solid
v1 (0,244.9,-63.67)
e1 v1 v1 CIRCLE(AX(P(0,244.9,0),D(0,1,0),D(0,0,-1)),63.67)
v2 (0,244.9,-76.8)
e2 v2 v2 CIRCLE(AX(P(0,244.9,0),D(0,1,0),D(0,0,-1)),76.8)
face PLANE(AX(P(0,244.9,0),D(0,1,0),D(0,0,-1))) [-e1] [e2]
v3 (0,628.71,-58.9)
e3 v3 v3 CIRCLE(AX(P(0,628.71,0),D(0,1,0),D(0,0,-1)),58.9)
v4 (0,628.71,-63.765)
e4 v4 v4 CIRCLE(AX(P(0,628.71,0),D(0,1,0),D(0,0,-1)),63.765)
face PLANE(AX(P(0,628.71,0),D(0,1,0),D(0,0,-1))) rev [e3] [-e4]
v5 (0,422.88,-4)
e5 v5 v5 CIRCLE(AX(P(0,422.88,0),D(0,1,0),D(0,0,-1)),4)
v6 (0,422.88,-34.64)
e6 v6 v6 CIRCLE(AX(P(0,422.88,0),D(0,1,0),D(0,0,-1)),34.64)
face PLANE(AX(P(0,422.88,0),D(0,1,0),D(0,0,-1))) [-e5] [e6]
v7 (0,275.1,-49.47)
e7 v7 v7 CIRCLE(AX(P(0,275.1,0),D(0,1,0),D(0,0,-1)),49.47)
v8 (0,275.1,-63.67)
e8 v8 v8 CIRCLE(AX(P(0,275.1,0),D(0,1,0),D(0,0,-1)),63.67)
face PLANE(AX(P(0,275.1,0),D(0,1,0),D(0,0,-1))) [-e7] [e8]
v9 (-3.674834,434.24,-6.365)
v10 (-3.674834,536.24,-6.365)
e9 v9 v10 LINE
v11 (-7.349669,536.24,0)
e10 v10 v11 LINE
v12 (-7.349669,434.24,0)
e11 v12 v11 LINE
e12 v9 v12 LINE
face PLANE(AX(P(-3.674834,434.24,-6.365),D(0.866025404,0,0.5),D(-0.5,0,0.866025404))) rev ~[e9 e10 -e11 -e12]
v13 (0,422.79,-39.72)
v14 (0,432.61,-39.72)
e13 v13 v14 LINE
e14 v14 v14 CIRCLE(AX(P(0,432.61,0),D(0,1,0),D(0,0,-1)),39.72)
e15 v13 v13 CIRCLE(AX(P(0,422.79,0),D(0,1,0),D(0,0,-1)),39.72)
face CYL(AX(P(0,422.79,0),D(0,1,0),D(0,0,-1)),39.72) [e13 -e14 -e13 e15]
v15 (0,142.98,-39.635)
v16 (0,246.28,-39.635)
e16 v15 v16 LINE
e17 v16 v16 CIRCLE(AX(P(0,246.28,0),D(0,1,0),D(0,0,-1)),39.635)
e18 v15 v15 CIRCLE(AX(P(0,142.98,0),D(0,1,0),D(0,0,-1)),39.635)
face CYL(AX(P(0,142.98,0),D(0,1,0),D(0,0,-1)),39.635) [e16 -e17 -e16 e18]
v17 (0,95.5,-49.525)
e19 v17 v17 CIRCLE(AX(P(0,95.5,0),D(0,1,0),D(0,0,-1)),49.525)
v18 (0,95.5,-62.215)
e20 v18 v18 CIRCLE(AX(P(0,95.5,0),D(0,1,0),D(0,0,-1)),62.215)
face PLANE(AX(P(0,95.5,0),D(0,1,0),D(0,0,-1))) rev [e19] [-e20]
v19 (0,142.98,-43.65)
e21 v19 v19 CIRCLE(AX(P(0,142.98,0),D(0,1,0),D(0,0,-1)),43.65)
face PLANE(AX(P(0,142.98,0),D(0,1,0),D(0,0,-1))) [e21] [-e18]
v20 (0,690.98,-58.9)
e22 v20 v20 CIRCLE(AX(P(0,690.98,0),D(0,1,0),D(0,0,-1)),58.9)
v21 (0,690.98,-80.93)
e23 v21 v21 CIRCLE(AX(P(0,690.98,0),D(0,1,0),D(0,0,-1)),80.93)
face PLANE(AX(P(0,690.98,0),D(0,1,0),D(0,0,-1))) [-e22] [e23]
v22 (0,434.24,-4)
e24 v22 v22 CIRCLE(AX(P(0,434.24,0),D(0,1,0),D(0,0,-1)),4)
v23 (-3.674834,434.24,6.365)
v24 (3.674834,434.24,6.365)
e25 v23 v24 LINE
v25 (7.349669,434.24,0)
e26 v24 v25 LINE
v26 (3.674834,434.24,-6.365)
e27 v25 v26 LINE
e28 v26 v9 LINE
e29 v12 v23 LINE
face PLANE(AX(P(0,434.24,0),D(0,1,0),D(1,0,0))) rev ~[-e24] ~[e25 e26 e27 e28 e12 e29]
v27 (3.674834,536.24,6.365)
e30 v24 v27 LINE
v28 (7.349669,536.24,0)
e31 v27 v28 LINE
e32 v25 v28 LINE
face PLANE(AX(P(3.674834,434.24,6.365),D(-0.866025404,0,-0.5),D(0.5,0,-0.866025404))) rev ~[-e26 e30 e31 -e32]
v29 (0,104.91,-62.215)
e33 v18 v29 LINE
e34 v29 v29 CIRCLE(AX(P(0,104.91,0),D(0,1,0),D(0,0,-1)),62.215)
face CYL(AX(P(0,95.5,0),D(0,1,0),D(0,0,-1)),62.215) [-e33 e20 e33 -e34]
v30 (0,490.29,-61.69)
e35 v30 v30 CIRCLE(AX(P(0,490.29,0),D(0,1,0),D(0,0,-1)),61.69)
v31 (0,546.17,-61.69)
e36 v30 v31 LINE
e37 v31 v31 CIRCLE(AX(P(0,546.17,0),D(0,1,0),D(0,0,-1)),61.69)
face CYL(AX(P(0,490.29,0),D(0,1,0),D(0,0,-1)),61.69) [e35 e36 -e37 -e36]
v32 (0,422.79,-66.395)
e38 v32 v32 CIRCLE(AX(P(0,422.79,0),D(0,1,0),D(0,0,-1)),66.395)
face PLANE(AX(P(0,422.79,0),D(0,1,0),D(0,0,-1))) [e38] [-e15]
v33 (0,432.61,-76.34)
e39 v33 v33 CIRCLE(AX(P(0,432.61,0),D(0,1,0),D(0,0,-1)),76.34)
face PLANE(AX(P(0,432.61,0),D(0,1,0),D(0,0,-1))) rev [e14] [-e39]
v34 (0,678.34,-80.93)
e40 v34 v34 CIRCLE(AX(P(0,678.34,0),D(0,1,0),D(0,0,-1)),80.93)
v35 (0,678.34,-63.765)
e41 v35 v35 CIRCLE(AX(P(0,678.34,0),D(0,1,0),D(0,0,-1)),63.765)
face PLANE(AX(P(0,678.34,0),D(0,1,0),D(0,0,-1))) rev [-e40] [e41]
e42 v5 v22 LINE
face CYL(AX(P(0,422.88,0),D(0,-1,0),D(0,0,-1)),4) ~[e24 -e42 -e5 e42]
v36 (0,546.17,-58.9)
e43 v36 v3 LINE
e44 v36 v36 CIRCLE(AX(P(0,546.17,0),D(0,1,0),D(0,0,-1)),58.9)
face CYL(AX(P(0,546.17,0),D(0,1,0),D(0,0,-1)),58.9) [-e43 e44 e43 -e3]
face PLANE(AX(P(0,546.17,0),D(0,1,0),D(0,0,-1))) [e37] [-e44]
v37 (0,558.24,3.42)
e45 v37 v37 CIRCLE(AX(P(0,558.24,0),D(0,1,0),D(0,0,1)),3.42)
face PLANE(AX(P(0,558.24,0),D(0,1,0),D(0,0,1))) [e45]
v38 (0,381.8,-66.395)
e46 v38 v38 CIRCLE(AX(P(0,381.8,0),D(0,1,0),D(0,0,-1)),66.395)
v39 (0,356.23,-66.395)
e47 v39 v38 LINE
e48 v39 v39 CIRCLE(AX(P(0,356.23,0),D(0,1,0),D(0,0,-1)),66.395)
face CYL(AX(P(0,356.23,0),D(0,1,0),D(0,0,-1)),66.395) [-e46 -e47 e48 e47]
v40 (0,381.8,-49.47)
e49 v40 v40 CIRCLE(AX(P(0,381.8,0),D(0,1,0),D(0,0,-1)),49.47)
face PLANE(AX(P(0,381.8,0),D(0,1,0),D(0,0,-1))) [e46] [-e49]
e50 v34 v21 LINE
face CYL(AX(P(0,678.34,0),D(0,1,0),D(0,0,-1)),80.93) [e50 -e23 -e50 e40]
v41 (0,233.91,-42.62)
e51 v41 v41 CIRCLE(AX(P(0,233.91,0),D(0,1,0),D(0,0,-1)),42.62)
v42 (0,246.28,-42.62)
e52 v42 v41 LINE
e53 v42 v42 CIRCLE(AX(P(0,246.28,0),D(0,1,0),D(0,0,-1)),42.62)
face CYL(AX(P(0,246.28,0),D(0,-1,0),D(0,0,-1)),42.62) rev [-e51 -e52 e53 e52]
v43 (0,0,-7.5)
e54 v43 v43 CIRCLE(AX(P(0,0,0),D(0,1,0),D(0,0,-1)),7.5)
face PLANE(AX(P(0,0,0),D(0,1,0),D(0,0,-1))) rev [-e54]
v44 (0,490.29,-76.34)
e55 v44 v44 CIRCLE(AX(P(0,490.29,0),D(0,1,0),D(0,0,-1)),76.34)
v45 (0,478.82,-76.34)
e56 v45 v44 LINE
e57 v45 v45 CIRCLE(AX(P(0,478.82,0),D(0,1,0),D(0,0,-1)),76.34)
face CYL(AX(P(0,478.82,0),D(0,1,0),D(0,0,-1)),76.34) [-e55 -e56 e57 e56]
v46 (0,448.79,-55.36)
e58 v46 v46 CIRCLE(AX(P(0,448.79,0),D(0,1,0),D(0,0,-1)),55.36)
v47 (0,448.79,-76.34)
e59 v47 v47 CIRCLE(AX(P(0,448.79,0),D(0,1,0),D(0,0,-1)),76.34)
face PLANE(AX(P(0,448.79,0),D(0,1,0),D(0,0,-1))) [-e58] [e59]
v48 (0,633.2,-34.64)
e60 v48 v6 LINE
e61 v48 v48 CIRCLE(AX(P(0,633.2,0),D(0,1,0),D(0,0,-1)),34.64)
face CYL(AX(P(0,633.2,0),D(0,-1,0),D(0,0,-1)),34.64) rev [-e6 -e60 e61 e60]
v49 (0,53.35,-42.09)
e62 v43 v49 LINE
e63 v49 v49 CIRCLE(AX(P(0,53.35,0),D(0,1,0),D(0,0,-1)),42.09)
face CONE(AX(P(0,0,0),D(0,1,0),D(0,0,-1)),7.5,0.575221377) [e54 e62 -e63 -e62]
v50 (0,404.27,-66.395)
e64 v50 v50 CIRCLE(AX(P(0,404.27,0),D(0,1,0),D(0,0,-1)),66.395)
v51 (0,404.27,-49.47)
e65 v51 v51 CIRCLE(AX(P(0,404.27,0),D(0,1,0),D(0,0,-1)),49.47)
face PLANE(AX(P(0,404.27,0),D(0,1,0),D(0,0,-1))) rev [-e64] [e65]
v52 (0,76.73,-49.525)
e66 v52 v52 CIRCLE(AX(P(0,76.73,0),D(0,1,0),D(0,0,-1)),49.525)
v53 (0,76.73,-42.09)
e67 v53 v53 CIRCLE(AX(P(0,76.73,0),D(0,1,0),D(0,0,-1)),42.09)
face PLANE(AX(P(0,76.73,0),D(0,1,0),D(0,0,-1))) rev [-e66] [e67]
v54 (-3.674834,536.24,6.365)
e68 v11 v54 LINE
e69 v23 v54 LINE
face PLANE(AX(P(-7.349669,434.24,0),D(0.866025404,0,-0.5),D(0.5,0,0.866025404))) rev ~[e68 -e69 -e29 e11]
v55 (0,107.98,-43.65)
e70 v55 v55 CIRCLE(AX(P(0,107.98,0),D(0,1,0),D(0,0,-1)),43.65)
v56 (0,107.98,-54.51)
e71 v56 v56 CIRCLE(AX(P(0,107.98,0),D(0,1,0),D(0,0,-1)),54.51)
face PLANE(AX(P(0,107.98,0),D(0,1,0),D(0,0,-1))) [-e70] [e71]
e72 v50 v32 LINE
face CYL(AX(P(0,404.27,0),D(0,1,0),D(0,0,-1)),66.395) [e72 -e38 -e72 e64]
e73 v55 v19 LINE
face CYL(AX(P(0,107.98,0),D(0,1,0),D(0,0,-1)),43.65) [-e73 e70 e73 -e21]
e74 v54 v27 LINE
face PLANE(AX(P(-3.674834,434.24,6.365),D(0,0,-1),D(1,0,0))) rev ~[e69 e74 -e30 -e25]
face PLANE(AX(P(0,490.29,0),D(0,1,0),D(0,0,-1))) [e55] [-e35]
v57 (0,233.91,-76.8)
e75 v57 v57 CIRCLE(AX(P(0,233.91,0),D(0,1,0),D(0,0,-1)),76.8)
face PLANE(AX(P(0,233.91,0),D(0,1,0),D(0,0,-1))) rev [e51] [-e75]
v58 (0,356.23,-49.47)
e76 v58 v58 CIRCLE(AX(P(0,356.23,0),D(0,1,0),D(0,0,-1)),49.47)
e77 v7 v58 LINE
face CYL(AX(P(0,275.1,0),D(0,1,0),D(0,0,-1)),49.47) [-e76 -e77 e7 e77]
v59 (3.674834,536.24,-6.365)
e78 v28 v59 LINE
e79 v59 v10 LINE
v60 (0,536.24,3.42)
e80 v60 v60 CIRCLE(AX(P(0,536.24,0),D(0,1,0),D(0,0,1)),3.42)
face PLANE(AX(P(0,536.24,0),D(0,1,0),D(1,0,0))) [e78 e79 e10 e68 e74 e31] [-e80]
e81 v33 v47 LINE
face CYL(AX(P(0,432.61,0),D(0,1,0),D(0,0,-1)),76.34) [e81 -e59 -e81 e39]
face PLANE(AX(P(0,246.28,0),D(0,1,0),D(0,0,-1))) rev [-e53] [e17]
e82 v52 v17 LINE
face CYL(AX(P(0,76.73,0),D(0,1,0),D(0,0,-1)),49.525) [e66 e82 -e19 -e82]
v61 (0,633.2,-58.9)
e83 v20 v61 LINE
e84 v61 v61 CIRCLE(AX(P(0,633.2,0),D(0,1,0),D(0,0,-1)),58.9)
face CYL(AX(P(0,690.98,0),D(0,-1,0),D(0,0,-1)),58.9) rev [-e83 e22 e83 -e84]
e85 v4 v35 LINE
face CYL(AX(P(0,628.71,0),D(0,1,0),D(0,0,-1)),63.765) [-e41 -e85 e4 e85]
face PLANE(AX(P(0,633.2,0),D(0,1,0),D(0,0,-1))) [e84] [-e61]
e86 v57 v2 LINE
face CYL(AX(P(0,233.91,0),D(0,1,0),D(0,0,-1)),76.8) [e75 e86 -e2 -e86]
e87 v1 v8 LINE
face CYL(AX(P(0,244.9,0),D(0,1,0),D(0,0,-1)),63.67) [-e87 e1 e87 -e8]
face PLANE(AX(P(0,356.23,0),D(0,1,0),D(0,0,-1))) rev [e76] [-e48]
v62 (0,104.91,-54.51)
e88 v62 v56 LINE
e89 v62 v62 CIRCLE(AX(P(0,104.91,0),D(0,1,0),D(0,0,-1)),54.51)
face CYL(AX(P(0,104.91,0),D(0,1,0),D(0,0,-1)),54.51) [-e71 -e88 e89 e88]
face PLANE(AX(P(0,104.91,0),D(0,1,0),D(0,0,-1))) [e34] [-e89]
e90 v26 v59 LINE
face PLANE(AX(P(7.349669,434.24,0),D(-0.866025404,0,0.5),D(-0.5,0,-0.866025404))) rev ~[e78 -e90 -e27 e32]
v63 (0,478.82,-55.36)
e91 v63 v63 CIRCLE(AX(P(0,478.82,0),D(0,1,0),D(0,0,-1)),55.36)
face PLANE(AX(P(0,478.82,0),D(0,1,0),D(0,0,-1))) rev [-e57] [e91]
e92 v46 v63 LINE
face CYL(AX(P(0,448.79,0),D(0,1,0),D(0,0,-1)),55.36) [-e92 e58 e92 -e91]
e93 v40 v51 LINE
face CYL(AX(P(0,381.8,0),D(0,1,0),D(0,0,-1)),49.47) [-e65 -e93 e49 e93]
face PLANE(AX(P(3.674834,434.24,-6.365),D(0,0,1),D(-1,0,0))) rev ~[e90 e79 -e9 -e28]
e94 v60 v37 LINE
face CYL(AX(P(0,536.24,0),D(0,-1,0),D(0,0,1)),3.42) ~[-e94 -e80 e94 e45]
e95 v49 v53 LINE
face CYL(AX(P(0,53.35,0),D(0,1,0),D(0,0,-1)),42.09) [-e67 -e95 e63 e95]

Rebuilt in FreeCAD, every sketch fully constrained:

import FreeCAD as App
import Part
import Sketcher
Q = App.Units.Quantity


def add_polygon(sketch, points):
    """Adds a closed chain of lines whose ends are joined by coincident constraints."""
    first, n = sketch.GeometryCount, len(points)
    for a, b in zip(points, points[1:] + points[:1]):
        sketch.addGeometry(Part.LineSegment(App.Vector(*a, 0), App.Vector(*b, 0)), False)
    for i in range(n):
        sketch.addConstraint(Sketcher.Constraint("Coincident", first + i, 2, first + (i + 1) % n, 1))

doc = App.newDocument("Part")
body = doc.addObject("PartDesign::Body", "Body")

sketch1 = doc.addObject("Sketcher::SketchObject", "Sketch")
body.addObject(sketch1)
sketch1.AttachmentSupport = (doc.XY_Plane, [""])
sketch1.MapMode = "FlatFace"
add_polygon(sketch1, [(0, 0), (7.5, 0), (42.1, 53.4), (42.1, 76.7), (49.5, 76.7), (49.5, 95.5), (62.2, 95.5), (62.2, 104.9), (54.5, 104.9), (54.5, 108), (43.6, 108), (43.6, 143), (39.6, 143), (39.6, 246.3), (42.6, 246.3), (42.6, 233.9), (76.8, 233.9), (76.8, 244.9), (63.7, 244.9), (63.7, 275.1), (49.5, 275.1), (49.5, 356.2), (66.4, 356.2), (66.4, 381.8), (49.5, 381.8), (49.5, 404.3), (66.4, 404.3), (66.4, 422.8), (39.7, 422.8), (39.7, 432.6), (76.3, 432.6), (76.3, 448.8), (55.4, 448.8), (55.4, 478.8), (76.3, 478.8), (76.3, 490.3), (61.7, 490.3), (61.7, 546.2), (58.9, 546.2), (58.9, 628.7), (63.8, 628.7), (63.8, 678.3), (80.9, 678.3), (80.9, 691), (58.9, 691), (58.9, 633.2), (34.6, 633.2), (34.6, 422.9), (0, 422.9)])
sketch1.addConstraint(Sketcher.Constraint("Horizontal", 0))
sketch1.addConstraint(Sketcher.Constraint("Vertical", 2))
sketch1.addConstraint(Sketcher.Constraint("Horizontal", 3))
sketch1.addConstraint(Sketcher.Constraint("Vertical", 4))
sketch1.addConstraint(Sketcher.Constraint("Horizontal", 5))
sketch1.addConstraint(Sketcher.Constraint("Vertical", 6))
sketch1.addConstraint(Sketcher.Constraint("Horizontal", 7))
sketch1.addConstraint(Sketcher.Constraint("Vertical", 8))
sketch1.addConstraint(Sketcher.Constraint("Horizontal", 9))
sketch1.addConstraint(Sketcher.Constraint("Vertical", 10))
sketch1.addConstraint(Sketcher.Constraint("Horizontal", 11))
sketch1.addConstraint(Sketcher.Constraint("Vertical", 12))
sketch1.addConstraint(Sketcher.Constraint("Horizontal", 13))
sketch1.addConstraint(Sketcher.Constraint("Vertical", 14))
sketch1.addConstraint(Sketcher.Constraint("Horizontal", 15))
sketch1.addConstraint(Sketcher.Constraint("Vertical", 16))
sketch1.addConstraint(Sketcher.Constraint("Horizontal", 17))
sketch1.addConstraint(Sketcher.Constraint("Vertical", 18))
sketch1.addConstraint(Sketcher.Constraint("Horizontal", 19))
sketch1.addConstraint(Sketcher.Constraint("Vertical", 20))
sketch1.addConstraint(Sketcher.Constraint("Horizontal", 21))
sketch1.addConstraint(Sketcher.Constraint("Vertical", 22))
sketch1.addConstraint(Sketcher.Constraint("Horizontal", 23))
sketch1.addConstraint(Sketcher.Constraint("Vertical", 24))
sketch1.addConstraint(Sketcher.Constraint("Horizontal", 25))
sketch1.addConstraint(Sketcher.Constraint("Vertical", 26))
sketch1.addConstraint(Sketcher.Constraint("Horizontal", 27))
sketch1.addConstraint(Sketcher.Constraint("Vertical", 28))
sketch1.addConstraint(Sketcher.Constraint("Horizontal", 29))
sketch1.addConstraint(Sketcher.Constraint("Vertical", 30))
sketch1.addConstraint(Sketcher.Constraint("Horizontal", 31))
sketch1.addConstraint(Sketcher.Constraint("Vertical", 32))
sketch1.addConstraint(Sketcher.Constraint("Horizontal", 33))
sketch1.addConstraint(Sketcher.Constraint("Vertical", 34))
sketch1.addConstraint(Sketcher.Constraint("Horizontal", 35))
sketch1.addConstraint(Sketcher.Constraint("Vertical", 36))
sketch1.addConstraint(Sketcher.Constraint("Horizontal", 37))
sketch1.addConstraint(Sketcher.Constraint("Vertical", 38))
sketch1.addConstraint(Sketcher.Constraint("Horizontal", 39))
sketch1.addConstraint(Sketcher.Constraint("Vertical", 40))
sketch1.addConstraint(Sketcher.Constraint("Horizontal", 41))
sketch1.addConstraint(Sketcher.Constraint("Vertical", 42))
sketch1.addConstraint(Sketcher.Constraint("Horizontal", 43))
sketch1.addConstraint(Sketcher.Constraint("Vertical", 44))
sketch1.addConstraint(Sketcher.Constraint("Horizontal", 45))
sketch1.addConstraint(Sketcher.Constraint("Vertical", 46))
sketch1.addConstraint(Sketcher.Constraint("Horizontal", 47))
sketch1.addConstraint(Sketcher.Constraint("Vertical", 48))
sketch1.addConstraint(Sketcher.Constraint("Coincident", 48, 2, -1, 1))
sketch1.addConstraint(Sketcher.Constraint("Vertical", 20, 2, 23, 2))
sketch1.addConstraint(Sketcher.Constraint("Vertical", 22, 2, 25, 2))
sketch1.addConstraint(Sketcher.Constraint("Vertical", 30, 2, 33, 2))
sketch1.addConstraint(Sketcher.Constraint("Vertical", 38, 2, 43, 2))
sketch1.addConstraint(Sketcher.Constraint("DistanceY", 10, 1, 10, 2, Q("35 mm")))
sketch1.addConstraint(Sketcher.Constraint("DistanceX", 0, 1, 0, 2, Q("7.5 mm")))
sketch1.addConstraint(Sketcher.Constraint("DistanceX", 19, 2, 19, 1, Q("14.2 mm")))
sketch1.addConstraint(Sketcher.Constraint("DistanceY", 12, 1, 12, 2, Q("103.3 mm")))
sketch1.addConstraint(Sketcher.Constraint("DistanceY", 18, 1, 18, 2, Q("30.2 mm")))
sketch1.addConstraint(Sketcher.Constraint("DistanceY", 26, 2, 30, 2, Q("26 mm")))
sketch1.addConstraint(Sketcher.Constraint("DistanceX", 5, 1, 5, 2, Q("12.69 mm")))
sketch1.addConstraint(Sketcher.Constraint("DistanceX", 9, 2, 9, 1, Q("10.86 mm")))
sketch1.addConstraint(Sketcher.Constraint("DistanceX", 15, 1, 15, 2, Q("34.18 mm")))
sketch1.addConstraint(Sketcher.Constraint("DistanceX", 17, 2, 17, 1, Q("13.13 mm")))
sketch1.addConstraint(Sketcher.Constraint("DistanceX", 29, 1, 29, 2, Q("36.62 mm")))
sketch1.addConstraint(Sketcher.Constraint("DistanceX", 31, 2, 31, 1, Q("20.98 mm")))
sketch1.addConstraint(Sketcher.Constraint("DistanceX", 35, 2, 35, 1, Q("14.65 mm")))
sketch1.addConstraint(Sketcher.Constraint("DistanceX", 37, 2, 37, 1, Q("2.79 mm")))
sketch1.addConstraint(Sketcher.Constraint("DistanceX", 43, 2, 43, 1, Q("22.03 mm")))
sketch1.addConstraint(Sketcher.Constraint("DistanceX", 45, 2, 45, 1, Q("24.26 mm")))
sketch1.addConstraint(Sketcher.Constraint("DistanceX", 47, 2, 47, 1, Q("34.64 mm")))
sketch1.addConstraint(Sketcher.Constraint("DistanceY", 2, 1, 2, 2, Q("23.38 mm")))
sketch1.addConstraint(Sketcher.Constraint("DistanceY", 4, 1, 4, 2, Q("18.77 mm")))
sketch1.addConstraint(Sketcher.Constraint("DistanceY", 6, 1, 6, 2, Q("9.41 mm")))
sketch1.addConstraint(Sketcher.Constraint("DistanceY", 8, 1, 8, 2, Q("3.07 mm")))
sketch1.addConstraint(Sketcher.Constraint("DistanceY", 14, 2, 14, 1, Q("12.37 mm")))
sketch1.addConstraint(Sketcher.Constraint("DistanceY", 16, 1, 16, 2, Q("10.99 mm")))
sketch1.addConstraint(Sketcher.Constraint("DistanceY", 20, 1, 20, 2, Q("81.13 mm")))
sketch1.addConstraint(Sketcher.Constraint("DistanceY", 22, 1, 22, 2, Q("25.57 mm")))
sketch1.addConstraint(Sketcher.Constraint("DistanceY", 24, 1, 24, 2, Q("22.47 mm")))
sketch1.addConstraint(Sketcher.Constraint("DistanceY", 26, 1, 26, 2, Q("18.52 mm")))
sketch1.addConstraint(Sketcher.Constraint("DistanceY", 28, 1, 28, 2, Q("9.82 mm")))
sketch1.addConstraint(Sketcher.Constraint("DistanceY", 32, 1, 32, 2, Q("30.03 mm")))
sketch1.addConstraint(Sketcher.Constraint("DistanceY", 34, 1, 34, 2, Q("11.47 mm")))
sketch1.addConstraint(Sketcher.Constraint("DistanceY", 36, 1, 36, 2, Q("55.88 mm")))
sketch1.addConstraint(Sketcher.Constraint("DistanceY", 38, 1, 38, 2, Q("82.54 mm")))
sketch1.addConstraint(Sketcher.Constraint("DistanceY", 40, 1, 40, 2, Q("49.63 mm")))
sketch1.addConstraint(Sketcher.Constraint("DistanceY", 42, 1, 42, 2, Q("12.64 mm")))
sketch1.addConstraint(Sketcher.Constraint("DistanceY", 44, 2, 44, 1, Q("57.78 mm")))
sketch1.addConstraint(Sketcher.Constraint("DistanceY", 46, 2, 46, 1, Q("210.32 mm")))
sketch1.addConstraint(Sketcher.Constraint("DistanceY", 48, 2, 48, 1, Q("422.88 mm")))
sketch1.addConstraint(Sketcher.Constraint("DistanceX", -1, 1, 15, 2, Q("76.8 mm")))
sketch1.addConstraint(Sketcher.Constraint("DistanceX", 3, 1, 3, 2, Q("7.435 mm")))
sketch1.addConstraint(Sketcher.Constraint("DistanceX", 7, 2, 7, 1, Q("7.705 mm")))
sketch1.addConstraint(Sketcher.Constraint("DistanceX", 11, 2, 11, 1, Q("4.015 mm")))
sketch1.addConstraint(Sketcher.Constraint("DistanceX", 13, 1, 13, 2, Q("2.985 mm")))
sketch1.addConstraint(Sketcher.Constraint("DistanceX", 21, 1, 21, 2, Q("16.925 mm")))
sketch1.addConstraint(Sketcher.Constraint("DistanceX", 39, 1, 39, 2, Q("4.865 mm")))
revolution = doc.addObject("PartDesign::Revolution", "Revolution")
body.addObject(revolution)
revolution.Profile = sketch1
revolution.ReferenceAxis = (sketch1, ["V_Axis"])
revolution.Angle = 360

sketch2 = doc.addObject("Sketcher::SketchObject", "Sketch001")
body.addObject(sketch2)
sketch2.AttachmentSupport = (doc.XZ_Plane, [""])
sketch2.MapMode = "FlatFace"
sketch2.AttachmentOffset = App.Placement(App.Vector(0, 0, -422.88), App.Rotation())
sketch2.addGeometry(Part.Circle(App.Vector(0, 0, 0), App.Vector(0, 0, 1), 4), False)
sketch2.addConstraint(Sketcher.Constraint("Coincident", 0, 3, -1, 1))
sketch2.addConstraint(Sketcher.Constraint("Diameter", 0, Q("8 mm")))
pad1 = doc.addObject("PartDesign::Pad", "Pad")
body.addObject(pad1)
pad1.Profile = sketch2
pad1.Length = 11.36
pad1.Reversed = True

sketch3 = doc.addObject("Sketcher::SketchObject", "Sketch002")
body.addObject(sketch3)
sketch3.AttachmentSupport = (doc.XZ_Plane, [""])
sketch3.MapMode = "FlatFace"
sketch3.AttachmentOffset = App.Placement(App.Vector(0, 0, -434.24), App.Rotation())
add_polygon(sketch3, [(7, 0), (4, -6), (-4, -6), (-7, 0), (-4, 6), (4, 6)])
sketch3.addConstraint(Sketcher.Constraint("Horizontal", 1))
sketch3.addConstraint(Sketcher.Constraint("Horizontal", 4))
sketch3.addConstraint(Sketcher.Constraint("Symmetric", 0, 2, 3, 2, -1, 1))
sketch3.addConstraint(Sketcher.Constraint("Symmetric", 2, 2, 5, 2, -1, 1))
sketch3.addConstraint(Sketcher.Constraint("PointOnObject", 2, 2, -1))
sketch3.addConstraint(Sketcher.Constraint("Parallel", 2, 5))
sketch3.addConstraint(Sketcher.Constraint("Vertical", 1, 2, 3, 2))
sketch3.addConstraint(Sketcher.Constraint("Angle", 0, Q("-120 deg")))
sketch3.addConstraint(Sketcher.Constraint("DistanceY", 1, 2, 3, 2, Q("12.73 mm")))
sketch3.addConstraint(Sketcher.Constraint("DistanceX", 1, 2, 1, 1, Q("7.349669 mm")))
pad2 = doc.addObject("PartDesign::Pad", "Pad001")
body.addObject(pad2)
pad2.Profile = sketch3
pad2.Length = 102
pad2.Reversed = True

sketch4 = doc.addObject("Sketcher::SketchObject", "Sketch003")
body.addObject(sketch4)
sketch4.AttachmentSupport = (doc.XZ_Plane, [""])
sketch4.MapMode = "FlatFace"
sketch4.AttachmentOffset = App.Placement(App.Vector(0, 0, -536.24), App.Rotation())
sketch4.addGeometry(Part.Circle(App.Vector(0, 0, 0), App.Vector(0, 0, 1), 3.4), False)
sketch4.addConstraint(Sketcher.Constraint("Coincident", 0, 3, -1, 1))
sketch4.addConstraint(Sketcher.Constraint("Diameter", 0, Q("6.84 mm")))
pad3 = doc.addObject("PartDesign::Pad", "Pad002")
body.addObject(pad3)
pad3.Profile = sketch4
pad3.Length = 22
pad3.Reversed = True

doc.recompute()
